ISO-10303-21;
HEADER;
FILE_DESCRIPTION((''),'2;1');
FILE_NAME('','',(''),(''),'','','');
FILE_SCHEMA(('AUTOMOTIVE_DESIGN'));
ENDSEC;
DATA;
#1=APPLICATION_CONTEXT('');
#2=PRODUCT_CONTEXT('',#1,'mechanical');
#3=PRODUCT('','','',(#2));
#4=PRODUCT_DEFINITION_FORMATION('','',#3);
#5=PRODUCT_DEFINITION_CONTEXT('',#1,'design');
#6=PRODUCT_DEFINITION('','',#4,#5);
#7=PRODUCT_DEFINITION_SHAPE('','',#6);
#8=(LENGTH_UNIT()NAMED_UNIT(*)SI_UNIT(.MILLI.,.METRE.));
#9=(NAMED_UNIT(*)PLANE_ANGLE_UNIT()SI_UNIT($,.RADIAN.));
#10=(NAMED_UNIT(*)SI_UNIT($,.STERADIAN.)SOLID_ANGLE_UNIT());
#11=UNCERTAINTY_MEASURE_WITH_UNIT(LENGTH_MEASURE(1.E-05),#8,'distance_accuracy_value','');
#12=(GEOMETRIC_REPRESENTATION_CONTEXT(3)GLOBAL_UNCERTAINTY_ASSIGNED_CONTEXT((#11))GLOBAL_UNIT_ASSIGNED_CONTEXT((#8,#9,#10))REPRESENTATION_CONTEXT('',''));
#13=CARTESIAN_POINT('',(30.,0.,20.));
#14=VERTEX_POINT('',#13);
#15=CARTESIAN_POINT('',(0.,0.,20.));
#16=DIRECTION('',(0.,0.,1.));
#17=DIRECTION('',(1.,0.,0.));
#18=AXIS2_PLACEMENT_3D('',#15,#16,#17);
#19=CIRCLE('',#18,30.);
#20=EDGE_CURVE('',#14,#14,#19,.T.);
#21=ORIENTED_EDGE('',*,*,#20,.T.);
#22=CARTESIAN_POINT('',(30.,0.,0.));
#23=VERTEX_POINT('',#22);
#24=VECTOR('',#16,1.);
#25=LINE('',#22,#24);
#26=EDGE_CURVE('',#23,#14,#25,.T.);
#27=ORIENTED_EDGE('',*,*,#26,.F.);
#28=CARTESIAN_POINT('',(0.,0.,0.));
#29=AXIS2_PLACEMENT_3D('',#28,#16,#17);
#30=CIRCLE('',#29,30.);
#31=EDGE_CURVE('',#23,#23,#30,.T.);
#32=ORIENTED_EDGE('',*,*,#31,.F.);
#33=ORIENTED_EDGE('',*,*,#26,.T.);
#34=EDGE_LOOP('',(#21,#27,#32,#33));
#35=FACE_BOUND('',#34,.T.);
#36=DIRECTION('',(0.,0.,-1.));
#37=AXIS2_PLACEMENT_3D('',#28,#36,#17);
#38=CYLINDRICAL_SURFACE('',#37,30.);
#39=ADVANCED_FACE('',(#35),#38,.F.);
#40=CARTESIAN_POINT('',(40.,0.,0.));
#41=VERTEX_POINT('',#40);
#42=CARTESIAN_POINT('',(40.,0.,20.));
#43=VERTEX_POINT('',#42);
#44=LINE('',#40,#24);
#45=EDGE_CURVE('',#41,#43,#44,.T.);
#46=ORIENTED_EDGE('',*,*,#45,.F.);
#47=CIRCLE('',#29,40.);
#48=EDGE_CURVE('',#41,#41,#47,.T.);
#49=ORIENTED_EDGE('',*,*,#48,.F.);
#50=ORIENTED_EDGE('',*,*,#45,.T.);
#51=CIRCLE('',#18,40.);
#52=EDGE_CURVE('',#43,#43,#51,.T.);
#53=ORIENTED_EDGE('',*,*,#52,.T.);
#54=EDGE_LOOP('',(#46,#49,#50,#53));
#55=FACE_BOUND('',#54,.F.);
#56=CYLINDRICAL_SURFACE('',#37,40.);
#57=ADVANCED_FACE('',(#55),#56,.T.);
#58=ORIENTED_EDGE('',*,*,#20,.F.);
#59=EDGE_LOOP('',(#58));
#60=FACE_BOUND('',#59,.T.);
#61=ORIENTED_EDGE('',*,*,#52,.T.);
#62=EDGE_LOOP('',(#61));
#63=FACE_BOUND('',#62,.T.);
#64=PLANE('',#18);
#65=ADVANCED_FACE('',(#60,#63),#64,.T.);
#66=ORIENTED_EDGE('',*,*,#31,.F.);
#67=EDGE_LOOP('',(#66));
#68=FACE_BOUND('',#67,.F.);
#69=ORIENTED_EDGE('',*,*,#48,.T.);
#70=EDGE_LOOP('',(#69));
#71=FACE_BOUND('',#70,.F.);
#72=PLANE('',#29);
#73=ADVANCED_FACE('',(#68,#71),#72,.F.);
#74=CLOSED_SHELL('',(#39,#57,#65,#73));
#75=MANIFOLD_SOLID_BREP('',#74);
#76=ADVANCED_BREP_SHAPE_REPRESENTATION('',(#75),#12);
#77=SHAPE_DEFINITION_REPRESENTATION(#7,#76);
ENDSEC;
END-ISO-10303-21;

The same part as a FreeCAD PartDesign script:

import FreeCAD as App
import Part
import Sketcher

doc = App.newDocument("Part")
body = doc.addObject("PartDesign::Body", "Body")

# Sketch on XY plane
sketch1 = body.newObject("Sketcher::SketchObject", "Sketch")
sketch1.AttachmentSupport = (doc.getObject("XY_Plane"), [""])
sketch1.MapMode = "FlatFace"
sketch1.addGeometry([
    Part.Circle(App.Vector(0, 0, 0), App.Vector(0, 0, 1), 40),
    Part.Circle(App.Vector(0, 0, 0), App.Vector(0, 0, 1), 30),
], False)
sketch1.addConstraint([
    Sketcher.Constraint("Coincident", 0, 3, -1, 1),
    Sketcher.Constraint("Coincident", 1, 3, -1, 1),
    Sketcher.Constraint("Diameter", 0, 80.0),
    Sketcher.Constraint("Diameter", 1, 60.0),
])
pad1 = body.newObject("PartDesign::Pad", "Pad")
pad1.Profile = sketch1
pad1.Length = 20

doc.recompute()
